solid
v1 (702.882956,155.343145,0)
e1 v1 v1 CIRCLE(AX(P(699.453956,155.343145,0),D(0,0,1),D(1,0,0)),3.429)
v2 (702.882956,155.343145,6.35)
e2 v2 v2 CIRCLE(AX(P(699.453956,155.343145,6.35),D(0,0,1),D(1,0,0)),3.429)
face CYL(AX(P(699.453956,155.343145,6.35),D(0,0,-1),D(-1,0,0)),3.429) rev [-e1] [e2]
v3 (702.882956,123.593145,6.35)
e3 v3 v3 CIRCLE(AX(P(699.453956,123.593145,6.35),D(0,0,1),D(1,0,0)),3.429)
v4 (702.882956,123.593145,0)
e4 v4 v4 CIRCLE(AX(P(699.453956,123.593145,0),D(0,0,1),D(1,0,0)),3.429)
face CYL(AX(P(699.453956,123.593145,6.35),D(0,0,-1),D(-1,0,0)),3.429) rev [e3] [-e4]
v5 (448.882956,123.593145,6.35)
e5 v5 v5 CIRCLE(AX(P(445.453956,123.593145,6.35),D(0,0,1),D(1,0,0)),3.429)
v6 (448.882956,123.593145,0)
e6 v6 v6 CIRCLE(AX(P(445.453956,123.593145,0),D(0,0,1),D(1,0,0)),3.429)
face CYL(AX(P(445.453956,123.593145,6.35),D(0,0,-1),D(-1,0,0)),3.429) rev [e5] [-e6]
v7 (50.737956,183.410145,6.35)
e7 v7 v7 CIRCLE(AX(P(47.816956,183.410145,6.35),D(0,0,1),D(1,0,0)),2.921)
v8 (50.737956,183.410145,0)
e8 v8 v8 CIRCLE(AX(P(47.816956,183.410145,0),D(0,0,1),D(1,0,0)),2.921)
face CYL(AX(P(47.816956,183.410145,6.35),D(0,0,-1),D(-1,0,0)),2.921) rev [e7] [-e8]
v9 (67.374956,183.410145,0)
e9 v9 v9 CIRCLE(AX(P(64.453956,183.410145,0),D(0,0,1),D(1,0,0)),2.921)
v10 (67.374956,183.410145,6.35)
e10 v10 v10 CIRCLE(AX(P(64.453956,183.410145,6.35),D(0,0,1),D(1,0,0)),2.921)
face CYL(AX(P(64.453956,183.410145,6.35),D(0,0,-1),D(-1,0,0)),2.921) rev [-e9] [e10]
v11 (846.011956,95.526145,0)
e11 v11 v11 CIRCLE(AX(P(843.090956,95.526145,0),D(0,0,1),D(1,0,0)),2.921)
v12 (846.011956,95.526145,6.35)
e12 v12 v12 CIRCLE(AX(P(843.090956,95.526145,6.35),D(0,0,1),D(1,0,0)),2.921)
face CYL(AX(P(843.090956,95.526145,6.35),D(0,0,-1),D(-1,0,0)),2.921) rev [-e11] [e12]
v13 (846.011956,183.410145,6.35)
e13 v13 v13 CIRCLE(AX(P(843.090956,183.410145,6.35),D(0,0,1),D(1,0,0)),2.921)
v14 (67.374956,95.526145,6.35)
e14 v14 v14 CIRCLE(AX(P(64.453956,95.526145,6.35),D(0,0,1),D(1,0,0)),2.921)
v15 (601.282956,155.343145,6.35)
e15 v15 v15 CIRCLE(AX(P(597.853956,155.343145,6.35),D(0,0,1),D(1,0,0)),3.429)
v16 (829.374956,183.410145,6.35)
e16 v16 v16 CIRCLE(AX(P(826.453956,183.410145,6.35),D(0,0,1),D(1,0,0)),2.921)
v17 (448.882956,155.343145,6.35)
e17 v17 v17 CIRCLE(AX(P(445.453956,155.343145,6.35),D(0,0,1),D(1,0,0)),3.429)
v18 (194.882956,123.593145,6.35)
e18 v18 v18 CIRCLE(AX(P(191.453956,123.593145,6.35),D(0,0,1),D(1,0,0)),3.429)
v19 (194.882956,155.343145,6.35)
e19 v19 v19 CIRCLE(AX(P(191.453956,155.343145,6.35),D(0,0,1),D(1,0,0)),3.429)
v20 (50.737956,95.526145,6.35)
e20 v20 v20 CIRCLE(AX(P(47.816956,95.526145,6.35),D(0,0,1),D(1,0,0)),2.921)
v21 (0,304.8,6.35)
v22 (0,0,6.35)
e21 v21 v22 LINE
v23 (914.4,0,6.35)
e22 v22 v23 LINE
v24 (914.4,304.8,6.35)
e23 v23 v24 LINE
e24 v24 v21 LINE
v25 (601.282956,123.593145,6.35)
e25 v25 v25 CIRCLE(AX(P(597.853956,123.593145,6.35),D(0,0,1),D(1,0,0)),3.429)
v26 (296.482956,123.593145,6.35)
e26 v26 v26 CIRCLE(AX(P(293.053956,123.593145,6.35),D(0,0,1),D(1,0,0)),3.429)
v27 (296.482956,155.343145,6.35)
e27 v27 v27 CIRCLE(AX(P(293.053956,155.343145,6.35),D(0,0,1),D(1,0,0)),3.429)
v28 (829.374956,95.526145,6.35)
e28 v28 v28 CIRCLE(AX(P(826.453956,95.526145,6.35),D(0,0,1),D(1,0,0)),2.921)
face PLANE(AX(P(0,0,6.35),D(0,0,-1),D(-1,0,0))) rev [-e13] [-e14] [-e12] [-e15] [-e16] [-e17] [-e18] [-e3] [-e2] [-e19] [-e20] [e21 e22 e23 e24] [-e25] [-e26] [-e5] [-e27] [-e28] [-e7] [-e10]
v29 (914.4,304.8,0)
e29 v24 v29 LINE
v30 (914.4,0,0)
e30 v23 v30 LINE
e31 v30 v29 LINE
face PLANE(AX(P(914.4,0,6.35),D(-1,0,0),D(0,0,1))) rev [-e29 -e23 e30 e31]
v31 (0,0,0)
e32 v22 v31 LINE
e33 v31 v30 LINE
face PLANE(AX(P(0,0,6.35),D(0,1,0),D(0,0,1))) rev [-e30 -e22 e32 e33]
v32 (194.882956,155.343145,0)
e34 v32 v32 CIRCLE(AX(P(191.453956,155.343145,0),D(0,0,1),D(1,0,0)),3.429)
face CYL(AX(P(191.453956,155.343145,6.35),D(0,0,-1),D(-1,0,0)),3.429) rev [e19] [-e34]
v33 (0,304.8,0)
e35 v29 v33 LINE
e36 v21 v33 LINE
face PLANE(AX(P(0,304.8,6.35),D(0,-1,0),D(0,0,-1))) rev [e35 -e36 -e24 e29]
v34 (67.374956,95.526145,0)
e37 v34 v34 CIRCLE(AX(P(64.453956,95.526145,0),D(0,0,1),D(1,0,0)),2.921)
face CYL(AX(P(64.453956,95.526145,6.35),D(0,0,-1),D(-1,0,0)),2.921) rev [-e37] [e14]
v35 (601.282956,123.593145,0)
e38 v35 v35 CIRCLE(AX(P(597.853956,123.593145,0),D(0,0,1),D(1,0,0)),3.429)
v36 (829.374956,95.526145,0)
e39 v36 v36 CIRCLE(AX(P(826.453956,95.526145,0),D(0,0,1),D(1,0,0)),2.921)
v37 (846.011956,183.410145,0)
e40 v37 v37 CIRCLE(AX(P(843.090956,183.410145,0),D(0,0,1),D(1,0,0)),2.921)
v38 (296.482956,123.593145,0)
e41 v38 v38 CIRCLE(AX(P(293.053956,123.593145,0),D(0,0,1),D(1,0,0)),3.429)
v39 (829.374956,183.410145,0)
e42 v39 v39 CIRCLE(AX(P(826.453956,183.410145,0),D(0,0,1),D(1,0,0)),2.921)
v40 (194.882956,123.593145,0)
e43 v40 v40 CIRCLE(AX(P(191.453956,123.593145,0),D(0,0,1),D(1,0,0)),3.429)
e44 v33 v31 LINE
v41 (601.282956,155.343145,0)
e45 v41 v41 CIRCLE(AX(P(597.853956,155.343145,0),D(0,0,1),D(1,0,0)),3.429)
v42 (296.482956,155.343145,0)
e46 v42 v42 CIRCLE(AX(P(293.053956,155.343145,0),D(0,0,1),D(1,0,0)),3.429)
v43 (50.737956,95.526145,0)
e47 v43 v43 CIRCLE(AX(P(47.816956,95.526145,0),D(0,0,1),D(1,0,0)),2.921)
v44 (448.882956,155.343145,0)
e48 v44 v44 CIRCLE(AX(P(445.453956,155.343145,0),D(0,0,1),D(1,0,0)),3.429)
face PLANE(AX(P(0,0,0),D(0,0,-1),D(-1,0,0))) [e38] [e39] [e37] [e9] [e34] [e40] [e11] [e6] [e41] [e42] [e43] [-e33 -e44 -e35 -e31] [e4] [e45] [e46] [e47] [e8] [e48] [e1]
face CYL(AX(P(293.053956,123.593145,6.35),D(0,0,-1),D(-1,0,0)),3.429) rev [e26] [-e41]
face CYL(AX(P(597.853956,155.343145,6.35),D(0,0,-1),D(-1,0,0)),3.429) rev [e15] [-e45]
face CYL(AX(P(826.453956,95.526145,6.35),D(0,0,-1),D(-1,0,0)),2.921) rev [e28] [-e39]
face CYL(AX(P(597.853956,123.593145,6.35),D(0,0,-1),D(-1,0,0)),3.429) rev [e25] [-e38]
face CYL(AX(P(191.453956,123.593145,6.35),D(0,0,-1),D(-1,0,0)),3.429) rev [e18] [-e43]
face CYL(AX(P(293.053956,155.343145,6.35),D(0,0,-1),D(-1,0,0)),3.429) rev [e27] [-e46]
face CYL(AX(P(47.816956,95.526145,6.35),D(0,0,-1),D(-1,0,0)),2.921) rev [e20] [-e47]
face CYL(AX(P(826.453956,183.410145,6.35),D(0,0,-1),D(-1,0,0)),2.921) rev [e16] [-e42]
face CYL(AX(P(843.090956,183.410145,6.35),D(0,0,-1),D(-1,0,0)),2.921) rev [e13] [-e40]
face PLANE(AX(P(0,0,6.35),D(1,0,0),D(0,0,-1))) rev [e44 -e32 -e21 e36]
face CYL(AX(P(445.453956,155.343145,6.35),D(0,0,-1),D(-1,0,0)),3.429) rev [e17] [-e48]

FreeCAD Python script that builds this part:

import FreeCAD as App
import Part
import Sketcher
Q = App.Units.Quantity

doc = App.newDocument("Part")
body = doc.addObject("PartDesign::Body", "Body")

# Sketch on XY plane
sketch1 = doc.addObject("Sketcher::SketchObject", "Sketch")
body.addObject(sketch1)
sketch1.AttachmentSupport = (doc.XY_Plane, [""])
sketch1.MapMode = "FlatFace"
sketch1.addGeometry(Part.LineSegment(App.Vector(0, 304.8, 0), App.Vector(0, 0, 0)), False)
sketch1.addGeometry(Part.LineSegment(App.Vector(0, 0, 0), App.Vector(914.4, 0, 0)), False)
sketch1.addGeometry(Part.LineSegment(App.Vector(914.4, 0, 0), App.Vector(914.4, 304.8, 0)), False)
sketch1.addGeometry(Part.LineSegment(App.Vector(914.4, 304.8, 0), App.Vector(0, 304.8, 0)), False)
sketch1.addGeometry(Part.Circle(App.Vector(47.816956, 95.526145, 0), App.Vector(0, 0, 1), 2.921), False)
sketch1.addGeometry(Part.Circle(App.Vector(64.453956, 95.526145, 0), App.Vector(0, 0, 1), 2.921), False)
sketch1.addGeometry(Part.Circle(App.Vector(191.453956, 123.593145, 0), App.Vector(0, 0, 1), 3.429), False)
sketch1.addGeometry(Part.Circle(App.Vector(293.053956, 123.593145, 0), App.Vector(0, 0, 1), 3.429), False)
sketch1.addGeometry(Part.Circle(App.Vector(445.453956, 123.593145, 0), App.Vector(0, 0, 1), 3.429), False)
sketch1.addGeometry(Part.Circle(App.Vector(826.453956, 95.526145, 0), App.Vector(0, 0, 1), 2.921), False)
sketch1.addGeometry(Part.Circle(App.Vector(843.090956, 95.526145, 0), App.Vector(0, 0, 1), 2.921), False)
sketch1.addGeometry(Part.Circle(App.Vector(597.853956, 123.593145, 0), App.Vector(0, 0, 1), 3.429), False)
sketch1.addGeometry(Part.Circle(App.Vector(699.453956, 123.593145, 0), App.Vector(0, 0, 1), 3.429), False)
sketch1.addGeometry(Part.Circle(App.Vector(191.453956, 155.343145, 0), App.Vector(0, 0, 1), 3.429), False)
sketch1.addGeometry(Part.Circle(App.Vector(293.053956, 155.343145, 0), App.Vector(0, 0, 1), 3.429), False)
sketch1.addGeometry(Part.Circle(App.Vector(445.453956, 155.343145, 0), App.Vector(0, 0, 1), 3.429), False)
sketch1.addGeometry(Part.Circle(App.Vector(47.816956, 183.410145, 0), App.Vector(0, 0, 1), 2.921), False)
sketch1.addGeometry(Part.Circle(App.Vector(64.453956, 183.410145, 0), App.Vector(0, 0, 1), 2.921), False)
sketch1.addGeometry(Part.Circle(App.Vector(597.853956, 155.343145, 0), App.Vector(0, 0, 1), 3.429), False)
sketch1.addGeometry(Part.Circle(App.Vector(699.453956, 155.343145, 0), App.Vector(0, 0, 1), 3.429), False)
sketch1.addGeometry(Part.Circle(App.Vector(826.453956, 183.410145, 0), App.Vector(0, 0, 1), 2.921), False)
sketch1.addGeometry(Part.Circle(App.Vector(843.090956, 183.410145, 0), App.Vector(0, 0, 1), 2.921), False)
sketch1.addConstraint(Sketcher.Constraint("Coincident", 0, 2, 1, 1))
sketch1.addConstraint(Sketcher.Constraint("Coincident", 1, 2, 2, 1))
sketch1.addConstraint(Sketcher.Constraint("Coincident", 2, 2, 3, 1))
sketch1.addConstraint(Sketcher.Constraint("Coincident", 3, 2, 0, 1))
sketch1.addConstraint(Sketcher.Constraint("Vertical", 0))
sketch1.addConstraint(Sketcher.Constraint("Horizontal", 1))
sketch1.addConstraint(Sketcher.Constraint("Vertical", 2))
sketch1.addConstraint(Sketcher.Constraint("Horizontal", 3))
sketch1.addConstraint(Sketcher.Constraint("Coincident", 0, 2, -1, 1))
sketch1.addConstraint(Sketcher.Constraint("Equal", 4, 5))
sketch1.addConstraint(Sketcher.Constraint("Equal", 6, 7))
sketch1.addConstraint(Sketcher.Constraint("Equal", 7, 8))
sketch1.addConstraint(Sketcher.Constraint("Equal", 5, 9))
sketch1.addConstraint(Sketcher.Constraint("Equal", 9, 10))
sketch1.addConstraint(Sketcher.Constraint("Equal", 8, 11))
sketch1.addConstraint(Sketcher.Constraint("Equal", 11, 12))
sketch1.addConstraint(Sketcher.Constraint("Equal", 12, 13))
sketch1.addConstraint(Sketcher.Constraint("Equal", 13, 14))
sketch1.addConstraint(Sketcher.Constraint("Equal", 14, 15))
sketch1.addConstraint(Sketcher.Constraint("Equal", 10, 16))
sketch1.addConstraint(Sketcher.Constraint("Equal", 16, 17))
sketch1.addConstraint(Sketcher.Constraint("Equal", 15, 18))
sketch1.addConstraint(Sketcher.Constraint("Equal", 18, 19))
sketch1.addConstraint(Sketcher.Constraint("Equal", 17, 20))
sketch1.addConstraint(Sketcher.Constraint("Equal", 20, 21))
sketch1.addConstraint(Sketcher.Constraint("Horizontal", 4, 3, 5, 3))
sketch1.addConstraint(Sketcher.Constraint("Horizontal", 6, 3, 7, 3))
sketch1.addConstraint(Sketcher.Constraint("Horizontal", 7, 3, 8, 3))
sketch1.addConstraint(Sketcher.Constraint("Horizontal", 5, 3, 9, 3))
sketch1.addConstraint(Sketcher.Constraint("Horizontal", 9, 3, 10, 3))
sketch1.addConstraint(Sketcher.Constraint("Horizontal", 8, 3, 11, 3))
sketch1.addConstraint(Sketcher.Constraint("Horizontal", 11, 3, 12, 3))
sketch1.addConstraint(Sketcher.Constraint("Horizontal", 13, 3, 14, 3))
sketch1.addConstraint(Sketcher.Constraint("Horizontal", 14, 3, 15, 3))
sketch1.addConstraint(Sketcher.Constraint("Horizontal", 16, 3, 17, 3))
sketch1.addConstraint(Sketcher.Constraint("Horizontal", 15, 3, 18, 3))
sketch1.addConstraint(Sketcher.Constraint("Horizontal", 18, 3, 19, 3))
sketch1.addConstraint(Sketcher.Constraint("Horizontal", 17, 3, 20, 3))
sketch1.addConstraint(Sketcher.Constraint("Horizontal", 20, 3, 21, 3))
sketch1.addConstraint(Sketcher.Constraint("Vertical", 6, 3, 13, 3))
sketch1.addConstraint(Sketcher.Constraint("Vertical", 7, 3, 14, 3))
sketch1.addConstraint(Sketcher.Constraint("Vertical", 8, 3, 15, 3))
sketch1.addConstraint(Sketcher.Constraint("Vertical", 4, 3, 16, 3))
sketch1.addConstraint(Sketcher.Constraint("Vertical", 5, 3, 17, 3))
sketch1.addConstraint(Sketcher.Constraint("Vertical", 11, 3, 18, 3))
sketch1.addConstraint(Sketcher.Constraint("Vertical", 12, 3, 19, 3))
sketch1.addConstraint(Sketcher.Constraint("Vertical", 9, 3, 20, 3))
sketch1.addConstraint(Sketcher.Constraint("Vertical", 10, 3, 21, 3))
sketch1.addConstraint(Sketcher.Constraint("Diameter", 4, Q("0.23 in")))
sketch1.addConstraint(Sketcher.Constraint("Diameter", 6, Q("0.27 in")))
sketch1.addConstraint(Sketcher.Constraint("DistanceX", 1, 1, 1, 2, Q("36 in")))
sketch1.addConstraint(Sketcher.Constraint("DistanceY", 0, 2, 0, 1, Q("12 in")))
sketch1.addConstraint(Sketcher.Constraint("DistanceX", 5, 3, 6, 3, Q("5 in")))
sketch1.addConstraint(Sketcher.Constraint("DistanceX", 6, 3, 7, 3, Q("4 in")))
sketch1.addConstraint(Sketcher.Constraint("DistanceX", 7, 3, 8, 3, Q("6 in")))
sketch1.addConstraint(Sketcher.Constraint("DistanceX", 8, 3, 9, 3, Q("15 in")))
sketch1.addConstraint(Sketcher.Constraint("DistanceX", 8, 3, 11, 3, Q("6 in")))
sketch1.addConstraint(Sketcher.Constraint("DistanceX", 11, 3, 12, 3, Q("4 in")))
sketch1.addConstraint(Sketcher.Constraint("DistanceY", 6, 3, 13, 3, Q("1.25 in")))
sketch1.addConstraint(Sketcher.Constraint("DistanceY", 4, 3, 16, 3, Q("3.46 in")))
sketch1.addConstraint(Sketcher.Constraint("DistanceX", 4, 3, 5, 3, Q("0.655 in")))
sketch1.addConstraint(Sketcher.Constraint("DistanceY", 5, 3, 6, 3, Q("1.105 in")))
sketch1.addConstraint(Sketcher.Constraint("DistanceX", 9, 3, 10, 3, Q("0.655 in")))
sketch1.addConstraint(Sketcher.Constraint("DistanceX", -1, 1, 4, 3, 47.816956))
sketch1.addConstraint(Sketcher.Constraint("DistanceY", -1, 1, 4, 3, 95.526145))
pad1 = doc.addObject("PartDesign::Pad", "Pad")
body.addObject(pad1)
pad1.Profile = sketch1
pad1.Length = Q("0.25 in")

doc.recompute()
